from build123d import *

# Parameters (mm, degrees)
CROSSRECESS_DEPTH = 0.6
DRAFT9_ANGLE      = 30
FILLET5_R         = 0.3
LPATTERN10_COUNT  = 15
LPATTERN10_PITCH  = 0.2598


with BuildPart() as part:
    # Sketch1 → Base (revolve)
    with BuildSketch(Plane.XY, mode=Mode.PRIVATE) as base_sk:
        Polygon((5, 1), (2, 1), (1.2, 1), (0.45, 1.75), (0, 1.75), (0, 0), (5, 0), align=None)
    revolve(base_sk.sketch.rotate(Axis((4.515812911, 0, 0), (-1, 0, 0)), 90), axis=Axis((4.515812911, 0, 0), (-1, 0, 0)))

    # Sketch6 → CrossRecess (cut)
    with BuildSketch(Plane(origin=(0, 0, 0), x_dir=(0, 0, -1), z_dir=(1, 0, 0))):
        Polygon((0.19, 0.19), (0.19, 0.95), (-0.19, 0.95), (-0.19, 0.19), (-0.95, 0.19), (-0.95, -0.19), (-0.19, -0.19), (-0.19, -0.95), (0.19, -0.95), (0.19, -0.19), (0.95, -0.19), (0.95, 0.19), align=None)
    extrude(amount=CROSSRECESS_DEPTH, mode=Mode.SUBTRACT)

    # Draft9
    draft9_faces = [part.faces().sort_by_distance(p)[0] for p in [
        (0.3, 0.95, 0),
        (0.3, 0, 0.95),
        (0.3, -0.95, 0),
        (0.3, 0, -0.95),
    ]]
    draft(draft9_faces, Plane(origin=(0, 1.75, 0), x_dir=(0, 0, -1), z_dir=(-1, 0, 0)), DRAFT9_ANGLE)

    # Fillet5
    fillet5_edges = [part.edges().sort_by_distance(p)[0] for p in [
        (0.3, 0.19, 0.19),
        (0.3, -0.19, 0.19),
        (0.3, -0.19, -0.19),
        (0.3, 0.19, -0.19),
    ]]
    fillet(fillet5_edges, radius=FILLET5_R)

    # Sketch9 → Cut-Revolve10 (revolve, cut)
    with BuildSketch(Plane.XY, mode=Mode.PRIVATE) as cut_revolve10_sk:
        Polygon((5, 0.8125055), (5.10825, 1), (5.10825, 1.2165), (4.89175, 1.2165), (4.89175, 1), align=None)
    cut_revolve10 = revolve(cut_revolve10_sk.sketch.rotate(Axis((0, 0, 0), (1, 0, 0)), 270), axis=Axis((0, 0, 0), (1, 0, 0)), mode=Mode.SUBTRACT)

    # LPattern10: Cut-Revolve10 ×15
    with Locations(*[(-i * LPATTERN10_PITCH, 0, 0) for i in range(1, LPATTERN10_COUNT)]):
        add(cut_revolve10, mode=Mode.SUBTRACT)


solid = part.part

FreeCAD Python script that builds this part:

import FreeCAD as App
import Part
import Sketcher

V = App.Vector
Q = App.Units.Quantity


def edges_at(feature, points):
    """Names of the edges that pass closest to the given points."""
    edges = feature.Shape.Edges
    near = lambda p: min(range(len(edges)), key=lambda i: edges[i].distToShape(Part.Vertex(*p))[0])
    return sorted({f"Edge{near(p) + 1}" for p in points})


def faces_at(feature, points):
    """Names of the faces that lie closest to the given points."""
    faces = feature.Shape.Faces
    near = lambda p: min(range(len(faces)), key=lambda i: faces[i].distToShape(Part.Vertex(*p))[0])
    return sorted({f"Face{near(p) + 1}" for p in points})

doc = App.newDocument("Part")
body = doc.addObject("PartDesign::Body", "Body")

# Sketch on XY plane
sketch1 = body.newObject("Sketcher::SketchObject", "Sketch")
sketch1.AttachmentSupport = (doc.getObject("XY_Plane"), [""])
sketch1.MapMode = "FlatFace"
sketch1.addGeometry([
    Part.LineSegment(V(5, 1, 0), V(1.2, 1, 0)),  # 0
    Part.LineSegment(V(1.2, 1, 0), V(0.45, 1.75, 0)),  # 1
    Part.LineSegment(V(0.45, 1.75, 0), V(0, 1.75, 0)),  # 2
    Part.LineSegment(V(0, 1.75, 0), V(0, 0, 0)),  # 3
    Part.LineSegment(V(0, 0, 0), V(5, 0, 0)),  # 4
    Part.LineSegment(V(5, 0, 0), V(5, 1, 0)),  # 5
], False)
sketch1.addConstraint([
    Sketcher.Constraint("Coincident", 0, 2, 1, 1),
    Sketcher.Constraint("Coincident", 1, 2, 2, 1),
    Sketcher.Constraint("Coincident", 2, 2, 3, 1),
    Sketcher.Constraint("Coincident", 3, 2, 4, 1),
    Sketcher.Constraint("Coincident", 4, 2, 5, 1),
    Sketcher.Constraint("Coincident", 5, 2, 0, 1),
    Sketcher.Constraint("Horizontal", 0),
    Sketcher.Constraint("Horizontal", 2),
    Sketcher.Constraint("Vertical", 3),
    Sketcher.Constraint("Horizontal", 4),
    Sketcher.Constraint("Vertical", 5),
    Sketcher.Constraint("Coincident", 3, 2, -1, 1),
    Sketcher.Constraint("DistanceX", 4, 1, 4, 2, 5.0),
    Sketcher.Constraint("DistanceY", 5, 1, 5, 2, 1.0),
    Sketcher.Constraint("Angle", 1, Q("135 deg")),
    Sketcher.Constraint("DistanceX", 0, 2, 0, 1, 3.8),
    Sketcher.Constraint("DistanceX", 2, 2, 2, 1, 0.45),
])
revolution = body.newObject("PartDesign::Revolution", "Revolution")
revolution.Profile = sketch1
revolution.ReferenceAxis = (sketch1, ["H_Axis"])
revolution.Angle = 360

# Sketch on YZ plane
sketch2 = body.newObject("Sketcher::SketchObject", "Sketch001")
sketch2.AttachmentSupport = (doc.getObject("YZ_Plane"), [""])
sketch2.MapMode = "FlatFace"
sketch2.addGeometry([
    Part.LineSegment(V(0.19, -0.19, 0), V(0.95, -0.19, 0)),  # 0
    Part.LineSegment(V(0.95, -0.19, 0), V(0.95, 0.19, 0)),  # 1
    Part.LineSegment(V(0.95, 0.19, 0), V(0.19, 0.19, 0)),  # 2
    Part.LineSegment(V(0.19, 0.19, 0), V(0.19, 0.95, 0)),  # 3
    Part.LineSegment(V(0.19, 0.95, 0), V(-0.19, 0.95, 0)),  # 4
    Part.LineSegment(V(-0.19, 0.95, 0), V(-0.19, 0.19, 0)),  # 5
    Part.LineSegment(V(-0.19, 0.19, 0), V(-0.95, 0.19, 0)),  # 6
    Part.LineSegment(V(-0.95, 0.19, 0), V(-0.95, -0.19, 0)),  # 7
    Part.LineSegment(V(-0.95, -0.19, 0), V(-0.19, -0.19, 0)),  # 8
    Part.LineSegment(V(-0.19, -0.19, 0), V(-0.19, -0.95, 0)),  # 9
    Part.LineSegment(V(-0.19, -0.95, 0), V(0.19, -0.95, 0)),  # 10
    Part.LineSegment(V(0.19, -0.95, 0), V(0.19, -0.19, 0)),  # 11
], False)
sketch2.addConstraint([
    Sketcher.Constraint("Coincident", 0, 2, 1, 1),
    Sketcher.Constraint("Coincident", 1, 2, 2, 1),
    Sketcher.Constraint("Coincident", 2, 2, 3, 1),
    Sketcher.Constraint("Coincident", 3, 2, 4, 1),
    Sketcher.Constraint("Coincident", 4, 2, 5, 1),
    Sketcher.Constraint("Coincident", 5, 2, 6, 1),
    Sketcher.Constraint("Coincident", 6, 2, 7, 1),
    Sketcher.Constraint("Coincident", 7, 2, 8, 1),
    Sketcher.Constraint("Coincident", 8, 2, 9, 1),
    Sketcher.Constraint("Coincident", 9, 2, 10, 1),
    Sketcher.Constraint("Coincident", 10, 2, 11, 1),
    Sketcher.Constraint("Coincident", 11, 2, 0, 1),
    Sketcher.Constraint("Horizontal", 0),
    Sketcher.Constraint("Vertical", 1),
    Sketcher.Constraint("Horizontal", 2),
    Sketcher.Constraint("Vertical", 3),
    Sketcher.Constraint("Horizontal", 4),
    Sketcher.Constraint("Vertical", 5),
    Sketcher.Constraint("Horizontal", 6),
    Sketcher.Constraint("Vertical", 7),
    Sketcher.Constraint("Horizontal", 8),
    Sketcher.Constraint("Vertical", 9),
    Sketcher.Constraint("Horizontal", 10),
    Sketcher.Constraint("Vertical", 11),
    Sketcher.Constraint("Symmetric", 0, 2, 6, 2, -1, 1),
    Sketcher.Constraint("Symmetric", 2, 2, 8, 2, -1, 1),
    Sketcher.Constraint("Symmetric", 4, 2, 10, 2, -1, 1),
    Sketcher.Constraint("Symmetric", 2, 2, 5, 2, -2),
    Sketcher.Constraint("Equal", 10, 1),
    Sketcher.Constraint("Equal", 8, 3),
    Sketcher.Constraint("DistanceX", 0, 1, 0, 2, 0.76),
    Sketcher.Constraint("DistanceX", 4, 2, 4, 1, 0.38),
])
pocket1 = body.newObject("PartDesign::Pocket", "Pocket")
pocket1.Profile = sketch2
pocket1.Length = 0.6
pocket1.Reversed = True
doc.recompute()

draft = body.newObject("PartDesign::Draft", "Draft")
draft.Base = (pocket1, faces_at(pocket1, [
    (0.3, 0.95, 0),
    (0.3, 0, 0.95),
    (0.3, -0.95, 0),
    (0.3, 0, -0.95),
]))
draft.NeutralPlane = (doc.getObject("YZ_Plane"), [""])
draft.Angle = 30
draft.Reversed = True
doc.recompute()

fillet = body.newObject("PartDesign::Fillet", "Fillet")
fillet.Base = (draft, edges_at(draft, [
    (0.3, 0.19, 0.19),
    (0.3, -0.19, 0.19),
    (0.3, -0.19, -0.19),
    (0.3, 0.19, -0.19),
]))
fillet.Radius = 0.3

# Sketch on XY plane
sketch3 = body.newObject("Sketcher::SketchObject", "Sketch002")
sketch3.AttachmentSupport = (doc.getObject("XY_Plane"), [""])
sketch3.MapMode = "FlatFace"
sketch3.addGeometry([
    Part.LineSegment(V(5, 0.812505, 0), V(5.10825, 1, 0)),  # 0
    Part.LineSegment(V(5.10825, 1, 0), V(5.10825, 1.2165, 0)),  # 1
    Part.LineSegment(V(5.10825, 1.2165, 0), V(4.89175, 1.2165, 0)),  # 2
    Part.LineSegment(V(4.89175, 1.2165, 0), V(4.89175, 1, 0)),  # 3
    Part.LineSegment(V(4.89175, 1, 0), V(5, 0.812505, 0)),  # 4
], False)
sketch3.addConstraint([
    Sketcher.Constraint("Coincident", 0, 2, 1, 1),
    Sketcher.Constraint("Coincident", 1, 2, 2, 1),
    Sketcher.Constraint("Coincident", 2, 2, 3, 1),
    Sketcher.Constraint("Coincident", 3, 2, 4, 1),
    Sketcher.Constraint("Coincident", 4, 2, 0, 1),
    Sketcher.Constraint("Vertical", 1),
    Sketcher.Constraint("Horizontal", 2),
    Sketcher.Constraint("Vertical", 3),
    Sketcher.Constraint("Horizontal", 0, 2, 3, 2),
    Sketcher.Constraint("Equal", 2, 1),
    Sketcher.Constraint("Equal", 0, 4),
    Sketcher.Constraint("Angle", 0, Q("60 deg")),
    Sketcher.Constraint("DistanceY", -1, 1, 0, 2, 1.0),
    Sketcher.Constraint("DistanceX", -1, 1, 4, 2, 5.0),
    Sketcher.Constraint("DistanceX", 2, 2, 2, 1, 0.2165),
])
groove = body.newObject("PartDesign::Groove", "Groove")
groove.Profile = sketch3
groove.ReferenceAxis = (sketch3, ["H_Axis"])
groove.Angle = 360
doc.recompute()

linearpattern = body.newObject("PartDesign::LinearPattern", "LinearPattern")
linearpattern.Originals = [groove]
linearpattern.Direction = (doc.getObject("X_Axis"), [""])
linearpattern.Mode = "offset"
linearpattern.Offset = 0.2598
linearpattern.Occurrences = 15
linearpattern.Reversed = True
body.Tip = linearpattern

doc.recompute()
